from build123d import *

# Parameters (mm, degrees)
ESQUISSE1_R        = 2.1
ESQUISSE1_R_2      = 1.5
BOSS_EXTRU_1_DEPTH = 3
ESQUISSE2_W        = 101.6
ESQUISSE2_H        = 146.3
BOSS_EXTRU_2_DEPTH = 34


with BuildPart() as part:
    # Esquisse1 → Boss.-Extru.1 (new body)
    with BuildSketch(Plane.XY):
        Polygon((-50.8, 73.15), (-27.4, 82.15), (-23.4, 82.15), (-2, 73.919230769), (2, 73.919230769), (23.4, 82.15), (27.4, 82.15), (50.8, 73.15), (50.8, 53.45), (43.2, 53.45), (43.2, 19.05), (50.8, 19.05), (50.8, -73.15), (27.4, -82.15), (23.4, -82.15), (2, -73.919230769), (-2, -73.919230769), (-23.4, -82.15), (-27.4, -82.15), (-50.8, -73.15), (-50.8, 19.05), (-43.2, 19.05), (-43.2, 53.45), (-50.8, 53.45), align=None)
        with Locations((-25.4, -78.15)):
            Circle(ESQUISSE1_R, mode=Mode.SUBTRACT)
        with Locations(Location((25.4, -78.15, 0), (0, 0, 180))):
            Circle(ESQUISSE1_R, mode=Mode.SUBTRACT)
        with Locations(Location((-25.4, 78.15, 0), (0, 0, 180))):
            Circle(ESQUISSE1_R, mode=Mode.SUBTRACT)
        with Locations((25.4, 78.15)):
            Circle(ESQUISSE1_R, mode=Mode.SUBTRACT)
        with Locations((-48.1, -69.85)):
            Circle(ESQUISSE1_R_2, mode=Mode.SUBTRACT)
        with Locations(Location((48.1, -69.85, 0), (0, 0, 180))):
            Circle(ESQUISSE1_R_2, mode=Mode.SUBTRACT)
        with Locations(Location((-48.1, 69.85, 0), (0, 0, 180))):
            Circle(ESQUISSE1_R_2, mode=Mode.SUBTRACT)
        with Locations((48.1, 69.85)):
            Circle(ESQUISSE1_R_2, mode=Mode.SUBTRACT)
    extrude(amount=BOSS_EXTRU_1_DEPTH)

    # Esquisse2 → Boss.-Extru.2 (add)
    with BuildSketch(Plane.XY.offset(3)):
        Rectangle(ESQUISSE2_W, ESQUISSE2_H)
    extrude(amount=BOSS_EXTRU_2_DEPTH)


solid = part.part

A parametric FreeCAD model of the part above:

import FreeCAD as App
import Part
import Sketcher
from FreeCAD import Vector
Q = App.Units.Quantity

doc = App.newDocument("Part")
params = doc.addObject("Spreadsheet::Sheet", "Params")
for row, (alias, value) in enumerate([
    ("sketch1_diameter", "3 mm"),
    ("sketch1_diameter2", "4.2 mm"),
    ("sketch1_width", "4 mm"),
    ("sketch1_width2", "7.6 mm"),
    ("sketch1_height", "19.7 mm"),
    ("pad1_length", "3 mm"),
    ("sketch2_width", "101.6 mm"),
    ("sketch2_height", "146.3 mm"),
    ("pad2_length", "34 mm"),
], start=1):
    params.set(f"A{row}", alias)
    params.set(f"B{row}", "=" + value)
    params.setAlias(f"B{row}", alias)

body = doc.addObject("PartDesign::Body", "Body")

# Sketch on XY plane
sketch1 = body.newObject("Sketcher::SketchObject", "Sketch")
sketch1.AttachmentSupport = (doc.getObject("XY_Plane"), [""])
sketch1.MapMode = "FlatFace"
sketch1.addGeometry(Part.LineSegment(Vector(-27.4, 82.15, 0), Vector(-50.8, 73.15, 0)), False)
sketch1.addGeometry(Part.LineSegment(Vector(-50.8, 73.15, 0), Vector(-50.8, 53.45, 0)), False)
sketch1.addGeometry(Part.LineSegment(Vector(-50.8, 53.45, 0), Vector(-43.2, 53.45, 0)), False)
sketch1.addGeometry(Part.LineSegment(Vector(-43.2, 53.45, 0), Vector(-43.2, 19.05, 0)), False)
sketch1.addGeometry(Part.LineSegment(Vector(-43.2, 19.05, 0), Vector(-50.8, 19.05, 0)), False)
sketch1.addGeometry(Part.LineSegment(Vector(-50.8, 19.05, 0), Vector(-50.8, -73.15, 0)), False)
sketch1.addGeometry(Part.LineSegment(Vector(-50.8, -73.15, 0), Vector(-27.4, -82.15, 0)), False)
sketch1.addGeometry(Part.LineSegment(Vector(-27.4, -82.15, 0), Vector(-23.4, -82.15, 0)), False)
sketch1.addGeometry(Part.LineSegment(Vector(-23.4, -82.15, 0), Vector(-2, -73.919231, 0)), False)
sketch1.addGeometry(Part.LineSegment(Vector(-2, -73.919231, 0), Vector(2, -73.919231, 0)), False)
sketch1.addGeometry(Part.LineSegment(Vector(2, -73.919231, 0), Vector(23.4, -82.15, 0)), False)
sketch1.addGeometry(Part.LineSegment(Vector(23.4, -82.15, 0), Vector(27.4, -82.15, 0)), False)
sketch1.addGeometry(Part.LineSegment(Vector(27.4, -82.15, 0), Vector(50.8, -73.15, 0)), False)
sketch1.addGeometry(Part.LineSegment(Vector(50.8, -73.15, 0), Vector(50.8, 19.05, 0)), False)
sketch1.addGeometry(Part.LineSegment(Vector(50.8, 19.05, 0), Vector(43.2, 19.05, 0)), False)
sketch1.addGeometry(Part.LineSegment(Vector(43.2, 19.05, 0), Vector(43.2, 53.45, 0)), False)
sketch1.addGeometry(Part.LineSegment(Vector(43.2, 53.45, 0), Vector(50.8, 53.45, 0)), False)
sketch1.addGeometry(Part.LineSegment(Vector(50.8, 53.45, 0), Vector(50.8, 73.15, 0)), False)
sketch1.addGeometry(Part.LineSegment(Vector(50.8, 73.15, 0), Vector(27.4, 82.15, 0)), False)
sketch1.addGeometry(Part.LineSegment(Vector(27.4, 82.15, 0), Vector(23.4, 82.15, 0)), False)
sketch1.addGeometry(Part.LineSegment(Vector(23.4, 82.15, 0), Vector(2, 73.919231, 0)), False)
sketch1.addGeometry(Part.LineSegment(Vector(2, 73.919231, 0), Vector(-2, 73.919231, 0)), False)
sketch1.addGeometry(Part.LineSegment(Vector(-2, 73.919231, 0), Vector(-23.4, 82.15, 0)), False)
sketch1.addGeometry(Part.LineSegment(Vector(-23.4, 82.15, 0), Vector(-27.4, 82.15, 0)), False)
sketch1.addGeometry(Part.Circle(Vector(48.1, -69.85, 0), Vector(0, 0, 1), 1.5), False)
sketch1.addGeometry(Part.Circle(Vector(25.4, -78.15, 0), Vector(0, 0, 1), 2.1), False)
sketch1.addGeometry(Part.Circle(Vector(-25.4, -78.15, 0), Vector(0, 0, 1), 2.1), False)
sketch1.addGeometry(Part.Circle(Vector(-48.1, -69.85, 0), Vector(0, 0, 1), 1.5), False)
sketch1.addGeometry(Part.Circle(Vector(48.1, 69.85, 0), Vector(0, 0, 1), 1.5), False)
sketch1.addGeometry(Part.Circle(Vector(25.4, 78.15, 0), Vector(0, 0, 1), 2.1), False)
sketch1.addGeometry(Part.Circle(Vector(-25.4, 78.15, 0), Vector(0, 0, 1), 2.1), False)
sketch1.addGeometry(Part.Circle(Vector(-48.1, 69.85, 0), Vector(0, 0, 1), 1.5), False)
sketch1.addConstraint(Sketcher.Constraint("Coincident", 0, 2, 1, 1))
sketch1.addConstraint(Sketcher.Constraint("Coincident", 1, 2, 2, 1))
sketch1.addConstraint(Sketcher.Constraint("Coincident", 2, 2, 3, 1))
sketch1.addConstraint(Sketcher.Constraint("Coincident", 3, 2, 4, 1))
sketch1.addConstraint(Sketcher.Constraint("Coincident", 4, 2, 5, 1))
sketch1.addConstraint(Sketcher.Constraint("Coincident", 5, 2, 6, 1))
sketch1.addConstraint(Sketcher.Constraint("Coincident", 6, 2, 7, 1))
sketch1.addConstraint(Sketcher.Constraint("Coincident", 7, 2, 8, 1))
sketch1.addConstraint(Sketcher.Constraint("Coincident", 8, 2, 9, 1))
sketch1.addConstraint(Sketcher.Constraint("Coincident", 9, 2, 10, 1))
sketch1.addConstraint(Sketcher.Constraint("Coincident", 10, 2, 11, 1))
sketch1.addConstraint(Sketcher.Constraint("Coincident", 11, 2, 12, 1))
sketch1.addConstraint(Sketcher.Constraint("Coincident", 12, 2, 13, 1))
sketch1.addConstraint(Sketcher.Constraint("Coincident", 13, 2, 14, 1))
sketch1.addConstraint(Sketcher.Constraint("Coincident", 14, 2, 15, 1))
sketch1.addConstraint(Sketcher.Constraint("Coincident", 15, 2, 16, 1))
sketch1.addConstraint(Sketcher.Constraint("Coincident", 16, 2, 17, 1))
sketch1.addConstraint(Sketcher.Constraint("Coincident", 17, 2, 18, 1))
sketch1.addConstraint(Sketcher.Constraint("Coincident", 18, 2, 19, 1))
sketch1.addConstraint(Sketcher.Constraint("Coincident", 19, 2, 20, 1))
sketch1.addConstraint(Sketcher.Constraint("Coincident", 20, 2, 21, 1))
sketch1.addConstraint(Sketcher.Constraint("Coincident", 21, 2, 22, 1))
sketch1.addConstraint(Sketcher.Constraint("Coincident", 22, 2, 23, 1))
sketch1.addConstraint(Sketcher.Constraint("Coincident", 23, 2, 0, 1))
sketch1.addConstraint(Sketcher.Constraint("Vertical", 1))
sketch1.addConstraint(Sketcher.Constraint("Horizontal", 2))
sketch1.addConstraint(Sketcher.Constraint("Vertical", 3))
sketch1.addConstraint(Sketcher.Constraint("Horizontal", 4))
sketch1.addConstraint(Sketcher.Constraint("Vertical", 5))
sketch1.addConstraint(Sketcher.Constraint("Horizontal", 7))
sketch1.addConstraint(Sketcher.Constraint("Horizontal", 9))
sketch1.addConstraint(Sketcher.Constraint("Horizontal", 11))
sketch1.addConstraint(Sketcher.Constraint("Vertical", 13))
sketch1.addConstraint(Sketcher.Constraint("Horizontal", 14))
sketch1.addConstraint(Sketcher.Constraint("Vertical", 15))
sketch1.addConstraint(Sketcher.Constraint("Horizontal", 16))
sketch1.addConstraint(Sketcher.Constraint("Vertical", 17))
sketch1.addConstraint(Sketcher.Constraint("Horizontal", 19))
sketch1.addConstraint(Sketcher.Constraint("Horizontal", 21))
sketch1.addConstraint(Sketcher.Constraint("Horizontal", 23))
sketch1.addConstraint(Sketcher.Constraint("Equal", 25, 26))
sketch1.addConstraint(Sketcher.Constraint("Equal", 24, 27))
sketch1.addConstraint(Sketcher.Constraint("Equal", 27, 28))
sketch1.addConstraint(Sketcher.Constraint("Equal", 26, 29))
sketch1.addConstraint(Sketcher.Constraint("Equal", 29, 30))
sketch1.addConstraint(Sketcher.Constraint("Equal", 28, 31))
sketch1.addConstraint(Sketcher.Constraint("Symmetric", 27, 3, 28, 3, -1, 1))
sketch1.addConstraint(Sketcher.Constraint("Symmetric", 26, 3, 29, 3, -1, 1))
sketch1.addConstraint(Sketcher.Constraint("Symmetric", 25, 3, 30, 3, -1, 1))
sketch1.addConstraint(Sketcher.Constraint("Symmetric", 24, 3, 31, 3, -1, 1))
sketch1.addConstraint(Sketcher.Constraint("Symmetric", 0, 2, 12, 2, -1, 1))
sketch1.addConstraint(Sketcher.Constraint("Symmetric", 5, 2, 17, 2, -1, 1))
sketch1.addConstraint(Sketcher.Constraint("Symmetric", 6, 2, 18, 2, -1, 1))
sketch1.addConstraint(Sketcher.Constraint("Symmetric", 8, 2, 20, 2, -1, 1))
sketch1.addConstraint(Sketcher.Constraint("Symmetric", 10, 2, 22, 2, -1, 1))
sketch1.addConstraint(Sketcher.Constraint("Symmetric", 25, 3, 26, 3, -2))
sketch1.addConstraint(Sketcher.Constraint("Symmetric", 24, 3, 27, 3, -2))
sketch1.addConstraint(Sketcher.Constraint("Symmetric", 7, 2, 10, 2, -2))
sketch1.addConstraint(Sketcher.Constraint("Symmetric", 5, 2, 12, 2, -2))
sketch1.addConstraint(Sketcher.Constraint("Symmetric", 3, 2, 14, 2, -2))
sketch1.addConstraint(Sketcher.Constraint("Parallel", 0, 8))
sketch1.addConstraint(Sketcher.Constraint("Parallel", 6, 10))
sketch1.addConstraint(Sketcher.Constraint("Parallel", 8, 12))
sketch1.addConstraint(Sketcher.Constraint("Parallel", 12, 20))
sketch1.addConstraint(Sketcher.Constraint("Parallel", 18, 22))
sketch1.addConstraint(Sketcher.Constraint("Horizontal", 2, 2, 15, 2))
sketch1.addConstraint(Sketcher.Constraint("Vertical", 11, 2, 18, 2))
sketch1.addConstraint(Sketcher.Constraint("Equal", 7, 9))
sketch1.addConstraint(Sketcher.Constraint("Diameter", 24, Q("3 mm")))
sketch1.addConstraint(Sketcher.Constraint("Diameter", 25, Q("4.2 mm")))
sketch1.addConstraint(Sketcher.Constraint("DistanceX", 7, 1, 7, 2, Q("4 mm")))
sketch1.addConstraint(Sketcher.Constraint("DistanceX", 2, 1, 2, 2, Q("7.6 mm")))
sketch1.addConstraint(Sketcher.Constraint("DistanceY", 1, 2, 1, 1, Q("19.7 mm")))
sketch1.addConstraint(Sketcher.Constraint("DistanceY", 3, 2, 3, 1, Q("34.4 mm")))
sketch1.addConstraint(Sketcher.Constraint("DistanceY", 5, 2, 5, 1, Q("92.2 mm")))
sketch1.addConstraint(Sketcher.Constraint("DistanceY", 25, 3, 28, 3, Q("148 mm")))
sketch1.addConstraint(Sketcher.Constraint("DistanceY", 0, 2, 30, 3, Q("5 mm")))
sketch1.addConstraint(Sketcher.Constraint("DistanceX", 6, 2, 26, 3, Q("2 mm")))
sketch1.addConstraint(Sketcher.Constraint("DistanceY", 6, 2, 26, 3, Q("4 mm")))
sketch1.addConstraint(Sketcher.Constraint("DistanceX", 3, 2, 13, 2, Q("94 mm")))
sketch1.addConstraint(Sketcher.Constraint("DistanceX", -1, 1, 24, 3, Q("48.1 mm")))
sketch1.addConstraint(Sketcher.Constraint("DistanceX", -1, 1, 25, 3, Q("25.4 mm")))
sketch1.setExpression("Constraints[68]", "Params.sketch1_diameter")
sketch1.setExpression("Constraints[69]", "Params.sketch1_diameter2")
sketch1.setExpression("Constraints[70]", "Params.sketch1_width")
sketch1.setExpression("Constraints[71]", "Params.sketch1_width2")
sketch1.setExpression("Constraints[72]", "Params.sketch1_height")
pad1 = body.newObject("PartDesign::Pad", "Pad")
pad1.Profile = sketch1
pad1.setExpression("Length", "Params.pad1_length")

# Sketch on XY plane
sketch2 = body.newObject("Sketcher::SketchObject", "Sketch001")
sketch2.AttachmentSupport = (doc.getObject("XY_Plane"), [""])
sketch2.MapMode = "FlatFace"
sketch2.AttachmentOffset = App.Placement(Vector(0, 0, 3), App.Rotation())
sketch2.addGeometry(Part.LineSegment(Vector(-50.8, 73.15, 0), Vector(-50.8, -73.15, 0)), False)
sketch2.addGeometry(Part.LineSegment(Vector(-50.8, -73.15, 0), Vector(50.8, -73.15, 0)), False)
sketch2.addGeometry(Part.LineSegment(Vector(50.8, -73.15, 0), Vector(50.8, 73.15, 0)), False)
sketch2.addGeometry(Part.LineSegment(Vector(50.8, 73.15, 0), Vector(-50.8, 73.15, 0)), False)
sketch2.addConstraint(Sketcher.Constraint("Coincident", 0, 2, 1, 1))
sketch2.addConstraint(Sketcher.Constraint("Coincident", 1, 2, 2, 1))
sketch2.addConstraint(Sketcher.Constraint("Coincident", 2, 2, 3, 1))
sketch2.addConstraint(Sketcher.Constraint("Coincident", 3, 2, 0, 1))
sketch2.addConstraint(Sketcher.Constraint("Vertical", 0))
sketch2.addConstraint(Sketcher.Constraint("Horizontal", 1))
sketch2.addConstraint(Sketcher.Constraint("Vertical", 2))
sketch2.addConstraint(Sketcher.Constraint("Horizontal", 3))
sketch2.addConstraint(Sketcher.Constraint("Symmetric", 0, 2, 2, 2, -1, 1))
sketch2.addConstraint(Sketcher.Constraint("DistanceX", 1, 1, 1, 2, Q("101.6 mm")))
sketch2.addConstraint(Sketcher.Constraint("DistanceY", 0, 2, 0, 1, Q("146.3 mm")))
sketch2.setExpression("Constraints[9]", "Params.sketch2_width")
sketch2.setExpression("Constraints[10]", "Params.sketch2_height")
pad2 = body.newObject("PartDesign::Pad", "Pad001")
pad2.Profile = sketch2
pad2.setExpression("Length", "Params.pad2_length")

doc.recompute()
